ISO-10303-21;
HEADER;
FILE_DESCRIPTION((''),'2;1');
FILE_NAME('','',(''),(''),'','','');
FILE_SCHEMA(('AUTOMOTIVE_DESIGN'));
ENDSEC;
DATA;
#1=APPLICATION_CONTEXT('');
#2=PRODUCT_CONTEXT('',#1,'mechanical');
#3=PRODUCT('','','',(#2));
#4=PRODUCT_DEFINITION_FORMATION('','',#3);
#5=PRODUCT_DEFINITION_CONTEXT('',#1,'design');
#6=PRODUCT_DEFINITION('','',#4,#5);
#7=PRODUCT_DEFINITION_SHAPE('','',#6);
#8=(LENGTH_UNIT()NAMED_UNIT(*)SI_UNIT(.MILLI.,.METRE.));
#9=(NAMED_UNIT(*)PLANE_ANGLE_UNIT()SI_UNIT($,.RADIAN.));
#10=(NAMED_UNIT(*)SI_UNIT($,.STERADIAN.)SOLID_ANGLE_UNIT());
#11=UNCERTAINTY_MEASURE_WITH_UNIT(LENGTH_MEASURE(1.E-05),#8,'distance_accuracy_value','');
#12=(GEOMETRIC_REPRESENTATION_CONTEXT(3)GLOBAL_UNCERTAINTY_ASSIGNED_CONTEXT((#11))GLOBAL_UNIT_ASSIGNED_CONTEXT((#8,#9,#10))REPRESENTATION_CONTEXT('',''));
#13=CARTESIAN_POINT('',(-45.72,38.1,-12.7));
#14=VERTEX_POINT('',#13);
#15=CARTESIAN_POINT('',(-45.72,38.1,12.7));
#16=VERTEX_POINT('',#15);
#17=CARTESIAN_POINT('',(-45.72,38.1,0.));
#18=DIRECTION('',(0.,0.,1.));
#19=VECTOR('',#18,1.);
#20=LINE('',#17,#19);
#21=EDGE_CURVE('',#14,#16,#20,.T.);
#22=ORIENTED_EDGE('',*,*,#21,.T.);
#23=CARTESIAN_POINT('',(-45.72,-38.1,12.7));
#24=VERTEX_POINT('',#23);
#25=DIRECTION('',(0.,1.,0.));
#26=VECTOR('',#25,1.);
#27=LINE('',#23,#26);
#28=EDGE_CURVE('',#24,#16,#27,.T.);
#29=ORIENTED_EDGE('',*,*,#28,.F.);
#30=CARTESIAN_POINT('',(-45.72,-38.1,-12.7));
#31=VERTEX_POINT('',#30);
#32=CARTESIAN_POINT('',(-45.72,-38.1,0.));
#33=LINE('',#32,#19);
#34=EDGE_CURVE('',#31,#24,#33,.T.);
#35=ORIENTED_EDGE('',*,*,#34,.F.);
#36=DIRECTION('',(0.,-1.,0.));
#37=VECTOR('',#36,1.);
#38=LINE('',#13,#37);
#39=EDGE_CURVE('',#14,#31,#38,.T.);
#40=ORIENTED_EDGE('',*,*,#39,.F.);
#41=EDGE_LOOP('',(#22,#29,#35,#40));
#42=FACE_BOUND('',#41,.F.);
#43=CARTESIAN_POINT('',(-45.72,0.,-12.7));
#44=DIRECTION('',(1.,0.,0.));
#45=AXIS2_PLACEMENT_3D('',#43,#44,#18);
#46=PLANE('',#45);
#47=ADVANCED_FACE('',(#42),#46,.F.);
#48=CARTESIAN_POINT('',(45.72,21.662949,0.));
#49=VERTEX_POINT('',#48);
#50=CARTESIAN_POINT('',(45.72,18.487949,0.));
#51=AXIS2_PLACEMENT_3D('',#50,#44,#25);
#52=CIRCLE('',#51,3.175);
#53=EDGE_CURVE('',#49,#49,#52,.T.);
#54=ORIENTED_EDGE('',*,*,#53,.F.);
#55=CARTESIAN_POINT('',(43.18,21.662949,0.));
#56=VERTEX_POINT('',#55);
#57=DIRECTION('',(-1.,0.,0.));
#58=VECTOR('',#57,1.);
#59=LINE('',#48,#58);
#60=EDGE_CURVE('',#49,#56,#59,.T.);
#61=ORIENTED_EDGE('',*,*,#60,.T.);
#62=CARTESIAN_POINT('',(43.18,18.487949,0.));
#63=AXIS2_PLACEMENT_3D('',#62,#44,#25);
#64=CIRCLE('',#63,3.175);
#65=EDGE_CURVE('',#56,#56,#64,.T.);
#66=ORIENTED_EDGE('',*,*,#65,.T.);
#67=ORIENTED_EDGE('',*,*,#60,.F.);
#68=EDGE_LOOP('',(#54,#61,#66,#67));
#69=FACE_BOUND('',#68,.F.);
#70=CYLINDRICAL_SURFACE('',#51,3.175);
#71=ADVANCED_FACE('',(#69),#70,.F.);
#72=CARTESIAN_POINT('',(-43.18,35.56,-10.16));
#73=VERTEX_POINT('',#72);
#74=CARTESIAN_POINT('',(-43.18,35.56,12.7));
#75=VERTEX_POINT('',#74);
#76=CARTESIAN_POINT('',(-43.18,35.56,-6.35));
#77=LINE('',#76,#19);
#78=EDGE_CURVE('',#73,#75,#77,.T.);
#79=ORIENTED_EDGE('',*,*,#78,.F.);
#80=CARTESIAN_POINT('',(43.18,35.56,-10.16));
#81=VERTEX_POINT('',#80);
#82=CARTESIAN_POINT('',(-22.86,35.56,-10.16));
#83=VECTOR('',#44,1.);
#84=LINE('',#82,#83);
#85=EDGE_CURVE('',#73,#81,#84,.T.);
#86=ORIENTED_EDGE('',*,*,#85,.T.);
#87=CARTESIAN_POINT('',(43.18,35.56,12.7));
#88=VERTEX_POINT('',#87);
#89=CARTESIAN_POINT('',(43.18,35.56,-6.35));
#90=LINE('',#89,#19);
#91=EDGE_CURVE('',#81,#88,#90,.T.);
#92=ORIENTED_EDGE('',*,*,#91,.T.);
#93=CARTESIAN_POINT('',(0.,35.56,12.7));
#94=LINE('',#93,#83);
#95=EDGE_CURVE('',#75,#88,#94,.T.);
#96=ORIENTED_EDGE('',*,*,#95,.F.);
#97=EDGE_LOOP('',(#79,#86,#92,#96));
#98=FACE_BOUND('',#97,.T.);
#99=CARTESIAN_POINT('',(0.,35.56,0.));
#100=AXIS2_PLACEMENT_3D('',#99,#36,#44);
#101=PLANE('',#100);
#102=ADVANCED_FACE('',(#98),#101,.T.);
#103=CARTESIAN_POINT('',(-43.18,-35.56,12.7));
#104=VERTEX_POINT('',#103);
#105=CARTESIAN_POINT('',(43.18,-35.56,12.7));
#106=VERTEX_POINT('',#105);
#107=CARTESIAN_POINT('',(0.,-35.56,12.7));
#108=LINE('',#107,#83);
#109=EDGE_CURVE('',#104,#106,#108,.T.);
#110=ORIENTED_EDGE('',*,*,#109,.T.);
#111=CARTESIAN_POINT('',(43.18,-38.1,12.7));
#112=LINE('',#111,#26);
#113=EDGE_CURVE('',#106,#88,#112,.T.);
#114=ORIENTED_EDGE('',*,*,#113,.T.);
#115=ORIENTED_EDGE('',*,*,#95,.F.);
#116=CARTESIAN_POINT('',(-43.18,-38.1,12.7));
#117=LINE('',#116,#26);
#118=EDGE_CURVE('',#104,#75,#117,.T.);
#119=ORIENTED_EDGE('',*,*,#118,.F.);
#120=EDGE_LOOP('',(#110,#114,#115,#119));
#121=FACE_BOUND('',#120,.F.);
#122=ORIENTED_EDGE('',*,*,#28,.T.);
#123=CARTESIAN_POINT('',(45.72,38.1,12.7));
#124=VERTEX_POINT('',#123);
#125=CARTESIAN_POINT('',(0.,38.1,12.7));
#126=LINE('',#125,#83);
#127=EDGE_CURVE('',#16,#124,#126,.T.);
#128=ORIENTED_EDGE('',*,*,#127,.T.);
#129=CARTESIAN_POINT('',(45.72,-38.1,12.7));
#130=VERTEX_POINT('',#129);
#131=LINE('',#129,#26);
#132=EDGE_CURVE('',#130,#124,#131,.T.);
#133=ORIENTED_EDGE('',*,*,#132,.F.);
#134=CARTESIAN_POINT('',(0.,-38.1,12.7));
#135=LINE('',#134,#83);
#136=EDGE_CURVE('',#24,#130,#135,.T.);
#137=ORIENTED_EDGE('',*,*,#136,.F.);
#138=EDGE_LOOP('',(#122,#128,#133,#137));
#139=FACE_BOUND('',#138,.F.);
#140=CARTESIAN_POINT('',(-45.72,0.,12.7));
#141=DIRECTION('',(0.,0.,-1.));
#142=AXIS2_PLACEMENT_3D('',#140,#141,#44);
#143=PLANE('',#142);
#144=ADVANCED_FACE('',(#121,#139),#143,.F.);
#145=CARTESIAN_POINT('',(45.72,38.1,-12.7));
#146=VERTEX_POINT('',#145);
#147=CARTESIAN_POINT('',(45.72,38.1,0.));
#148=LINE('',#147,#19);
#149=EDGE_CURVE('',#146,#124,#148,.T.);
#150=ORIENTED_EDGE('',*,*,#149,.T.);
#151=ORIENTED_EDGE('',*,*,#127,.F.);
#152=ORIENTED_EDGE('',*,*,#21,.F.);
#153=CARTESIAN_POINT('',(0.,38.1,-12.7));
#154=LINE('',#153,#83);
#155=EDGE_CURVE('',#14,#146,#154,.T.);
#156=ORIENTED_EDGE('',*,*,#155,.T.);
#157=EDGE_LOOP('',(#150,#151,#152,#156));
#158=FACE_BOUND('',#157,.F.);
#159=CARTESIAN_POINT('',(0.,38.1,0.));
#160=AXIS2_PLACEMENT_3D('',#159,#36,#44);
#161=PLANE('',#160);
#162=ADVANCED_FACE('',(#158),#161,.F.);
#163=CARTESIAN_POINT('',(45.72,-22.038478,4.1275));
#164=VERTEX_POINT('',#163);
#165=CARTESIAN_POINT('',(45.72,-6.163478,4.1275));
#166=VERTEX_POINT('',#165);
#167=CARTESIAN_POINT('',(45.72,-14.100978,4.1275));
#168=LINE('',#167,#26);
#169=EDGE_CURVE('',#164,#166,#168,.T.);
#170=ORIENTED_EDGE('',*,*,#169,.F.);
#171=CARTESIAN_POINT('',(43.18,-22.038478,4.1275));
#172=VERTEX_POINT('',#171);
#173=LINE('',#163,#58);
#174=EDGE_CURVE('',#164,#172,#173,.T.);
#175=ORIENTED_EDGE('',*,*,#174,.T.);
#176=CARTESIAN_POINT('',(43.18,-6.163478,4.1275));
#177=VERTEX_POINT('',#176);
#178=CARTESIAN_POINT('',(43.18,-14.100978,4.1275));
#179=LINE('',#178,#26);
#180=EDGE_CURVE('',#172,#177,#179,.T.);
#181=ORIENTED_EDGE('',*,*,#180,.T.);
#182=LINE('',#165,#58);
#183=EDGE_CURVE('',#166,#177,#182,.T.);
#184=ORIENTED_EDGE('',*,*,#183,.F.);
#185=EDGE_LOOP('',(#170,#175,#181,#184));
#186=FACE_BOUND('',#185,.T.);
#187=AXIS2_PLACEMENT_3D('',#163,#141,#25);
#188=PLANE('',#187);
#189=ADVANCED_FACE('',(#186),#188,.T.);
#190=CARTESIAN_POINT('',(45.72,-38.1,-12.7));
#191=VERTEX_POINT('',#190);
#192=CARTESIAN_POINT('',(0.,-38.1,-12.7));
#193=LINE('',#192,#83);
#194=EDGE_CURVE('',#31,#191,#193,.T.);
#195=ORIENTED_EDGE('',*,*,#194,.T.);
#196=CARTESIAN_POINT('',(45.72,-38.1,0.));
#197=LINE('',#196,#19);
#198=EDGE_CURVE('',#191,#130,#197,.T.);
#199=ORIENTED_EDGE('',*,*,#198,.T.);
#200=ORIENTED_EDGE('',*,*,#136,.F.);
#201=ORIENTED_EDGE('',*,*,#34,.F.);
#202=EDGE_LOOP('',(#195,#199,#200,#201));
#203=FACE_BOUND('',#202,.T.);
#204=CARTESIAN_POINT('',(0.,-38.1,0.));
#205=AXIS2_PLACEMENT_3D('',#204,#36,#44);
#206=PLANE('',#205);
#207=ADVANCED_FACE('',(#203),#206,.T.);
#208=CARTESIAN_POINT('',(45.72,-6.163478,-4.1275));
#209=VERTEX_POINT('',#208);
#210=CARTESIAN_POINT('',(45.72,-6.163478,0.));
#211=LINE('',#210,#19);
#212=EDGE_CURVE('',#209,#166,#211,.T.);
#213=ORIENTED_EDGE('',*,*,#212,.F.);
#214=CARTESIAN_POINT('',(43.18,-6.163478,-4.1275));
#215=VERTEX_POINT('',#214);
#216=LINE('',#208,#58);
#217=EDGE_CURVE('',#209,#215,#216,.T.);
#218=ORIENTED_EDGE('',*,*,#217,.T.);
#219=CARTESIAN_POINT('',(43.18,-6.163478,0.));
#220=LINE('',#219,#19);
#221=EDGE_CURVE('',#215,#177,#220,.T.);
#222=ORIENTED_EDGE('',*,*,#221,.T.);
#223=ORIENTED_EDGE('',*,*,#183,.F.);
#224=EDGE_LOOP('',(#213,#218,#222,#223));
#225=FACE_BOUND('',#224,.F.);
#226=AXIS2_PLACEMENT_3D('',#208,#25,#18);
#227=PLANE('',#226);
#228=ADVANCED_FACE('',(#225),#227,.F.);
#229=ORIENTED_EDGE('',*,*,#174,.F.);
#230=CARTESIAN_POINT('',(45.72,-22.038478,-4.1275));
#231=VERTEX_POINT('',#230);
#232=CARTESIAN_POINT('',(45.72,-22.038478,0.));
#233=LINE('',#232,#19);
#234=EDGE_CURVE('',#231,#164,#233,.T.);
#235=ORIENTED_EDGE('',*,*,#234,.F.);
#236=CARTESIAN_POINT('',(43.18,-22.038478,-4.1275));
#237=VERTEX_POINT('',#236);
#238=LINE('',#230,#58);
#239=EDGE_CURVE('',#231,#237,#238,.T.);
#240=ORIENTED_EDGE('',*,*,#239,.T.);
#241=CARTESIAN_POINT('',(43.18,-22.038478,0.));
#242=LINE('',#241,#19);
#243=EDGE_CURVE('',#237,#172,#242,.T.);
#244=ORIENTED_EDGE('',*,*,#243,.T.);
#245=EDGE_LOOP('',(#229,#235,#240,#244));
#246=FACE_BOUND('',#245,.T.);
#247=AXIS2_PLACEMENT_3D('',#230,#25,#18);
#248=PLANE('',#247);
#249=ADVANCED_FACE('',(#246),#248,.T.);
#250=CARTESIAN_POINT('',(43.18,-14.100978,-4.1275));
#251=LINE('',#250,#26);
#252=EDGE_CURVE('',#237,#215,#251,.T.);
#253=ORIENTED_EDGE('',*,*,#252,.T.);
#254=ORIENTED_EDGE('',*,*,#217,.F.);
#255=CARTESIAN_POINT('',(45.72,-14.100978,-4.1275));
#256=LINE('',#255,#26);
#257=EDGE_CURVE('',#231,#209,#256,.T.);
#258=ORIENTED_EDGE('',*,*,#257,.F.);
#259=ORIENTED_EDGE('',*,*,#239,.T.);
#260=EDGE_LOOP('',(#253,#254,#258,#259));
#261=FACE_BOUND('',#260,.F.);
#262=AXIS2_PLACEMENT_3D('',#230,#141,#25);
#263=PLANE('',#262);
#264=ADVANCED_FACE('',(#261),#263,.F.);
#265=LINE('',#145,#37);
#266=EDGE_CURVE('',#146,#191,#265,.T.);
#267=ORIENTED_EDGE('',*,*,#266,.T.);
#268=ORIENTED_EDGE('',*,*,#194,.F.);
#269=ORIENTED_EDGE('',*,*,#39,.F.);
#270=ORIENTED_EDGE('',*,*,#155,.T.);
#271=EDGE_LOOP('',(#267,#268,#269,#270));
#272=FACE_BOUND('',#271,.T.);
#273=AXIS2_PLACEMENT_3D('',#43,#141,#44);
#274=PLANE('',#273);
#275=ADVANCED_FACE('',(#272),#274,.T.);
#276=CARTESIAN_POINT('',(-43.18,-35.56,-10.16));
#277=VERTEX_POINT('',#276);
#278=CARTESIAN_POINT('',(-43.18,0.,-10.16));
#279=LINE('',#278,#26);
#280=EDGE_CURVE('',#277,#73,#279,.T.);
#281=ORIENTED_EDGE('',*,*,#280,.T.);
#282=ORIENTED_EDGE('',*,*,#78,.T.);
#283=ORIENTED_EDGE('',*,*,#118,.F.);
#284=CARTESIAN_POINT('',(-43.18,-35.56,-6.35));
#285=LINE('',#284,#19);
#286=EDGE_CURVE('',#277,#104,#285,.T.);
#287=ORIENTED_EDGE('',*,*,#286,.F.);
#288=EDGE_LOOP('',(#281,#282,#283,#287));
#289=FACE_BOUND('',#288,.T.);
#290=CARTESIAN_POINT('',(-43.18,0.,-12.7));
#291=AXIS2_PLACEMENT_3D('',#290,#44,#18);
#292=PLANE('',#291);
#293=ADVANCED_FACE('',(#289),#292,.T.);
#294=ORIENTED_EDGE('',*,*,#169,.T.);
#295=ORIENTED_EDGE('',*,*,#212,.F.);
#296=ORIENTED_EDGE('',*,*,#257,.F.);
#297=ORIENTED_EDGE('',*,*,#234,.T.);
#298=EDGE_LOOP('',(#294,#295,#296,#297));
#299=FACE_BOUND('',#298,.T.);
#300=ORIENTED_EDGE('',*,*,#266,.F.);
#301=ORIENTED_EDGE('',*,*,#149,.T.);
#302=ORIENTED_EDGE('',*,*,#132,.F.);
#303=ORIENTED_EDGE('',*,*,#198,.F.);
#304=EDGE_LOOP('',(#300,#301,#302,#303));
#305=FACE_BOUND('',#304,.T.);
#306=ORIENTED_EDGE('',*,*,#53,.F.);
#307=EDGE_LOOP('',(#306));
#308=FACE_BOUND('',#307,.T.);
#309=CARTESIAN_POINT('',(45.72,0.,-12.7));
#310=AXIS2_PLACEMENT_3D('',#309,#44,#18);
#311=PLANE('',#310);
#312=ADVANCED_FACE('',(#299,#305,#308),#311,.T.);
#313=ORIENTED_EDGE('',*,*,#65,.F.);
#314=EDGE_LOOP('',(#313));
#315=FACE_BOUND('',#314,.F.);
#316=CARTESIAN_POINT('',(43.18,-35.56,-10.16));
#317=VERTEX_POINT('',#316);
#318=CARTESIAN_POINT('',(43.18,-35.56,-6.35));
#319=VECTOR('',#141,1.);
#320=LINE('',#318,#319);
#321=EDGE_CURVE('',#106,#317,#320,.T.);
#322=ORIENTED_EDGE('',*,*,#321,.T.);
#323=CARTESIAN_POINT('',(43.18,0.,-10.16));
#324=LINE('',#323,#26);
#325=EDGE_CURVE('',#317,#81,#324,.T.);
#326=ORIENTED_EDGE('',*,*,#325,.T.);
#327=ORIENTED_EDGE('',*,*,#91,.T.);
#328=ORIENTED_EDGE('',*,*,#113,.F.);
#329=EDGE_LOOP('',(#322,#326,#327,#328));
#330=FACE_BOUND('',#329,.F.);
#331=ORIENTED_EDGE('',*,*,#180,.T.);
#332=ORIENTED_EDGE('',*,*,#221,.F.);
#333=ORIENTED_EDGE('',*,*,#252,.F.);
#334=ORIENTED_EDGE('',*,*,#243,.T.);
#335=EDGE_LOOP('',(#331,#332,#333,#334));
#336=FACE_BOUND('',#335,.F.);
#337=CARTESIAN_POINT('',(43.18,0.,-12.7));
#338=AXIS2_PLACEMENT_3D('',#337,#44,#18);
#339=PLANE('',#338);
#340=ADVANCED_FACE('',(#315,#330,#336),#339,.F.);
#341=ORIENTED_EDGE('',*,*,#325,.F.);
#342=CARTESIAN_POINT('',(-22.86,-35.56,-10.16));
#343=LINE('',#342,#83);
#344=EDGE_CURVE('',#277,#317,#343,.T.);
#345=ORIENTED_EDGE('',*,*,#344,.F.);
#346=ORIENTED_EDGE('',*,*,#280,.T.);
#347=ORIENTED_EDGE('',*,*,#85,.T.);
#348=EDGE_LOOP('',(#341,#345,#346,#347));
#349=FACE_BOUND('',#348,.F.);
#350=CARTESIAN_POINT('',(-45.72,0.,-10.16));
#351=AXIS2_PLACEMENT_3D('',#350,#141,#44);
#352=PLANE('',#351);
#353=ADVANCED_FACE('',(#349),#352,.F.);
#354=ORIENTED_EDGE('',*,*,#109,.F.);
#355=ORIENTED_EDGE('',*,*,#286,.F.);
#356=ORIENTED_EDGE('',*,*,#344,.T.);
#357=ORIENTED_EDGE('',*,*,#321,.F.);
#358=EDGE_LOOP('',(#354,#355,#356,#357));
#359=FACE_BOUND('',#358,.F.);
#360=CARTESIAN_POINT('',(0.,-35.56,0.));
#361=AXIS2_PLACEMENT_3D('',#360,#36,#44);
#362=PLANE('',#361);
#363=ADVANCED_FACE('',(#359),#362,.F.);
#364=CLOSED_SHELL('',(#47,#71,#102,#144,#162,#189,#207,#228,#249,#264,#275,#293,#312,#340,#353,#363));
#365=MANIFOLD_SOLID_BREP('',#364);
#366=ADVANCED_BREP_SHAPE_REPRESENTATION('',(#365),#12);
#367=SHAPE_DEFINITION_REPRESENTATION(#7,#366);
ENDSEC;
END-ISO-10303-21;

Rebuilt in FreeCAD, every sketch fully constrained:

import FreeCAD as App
import Part
import Sketcher
from FreeCAD import Vector
Q = App.Units.Quantity


def faces_at(feature, points):
    """Names of the faces that lie closest to the given points."""
    faces = feature.Shape.Faces
    near = lambda p: min(range(len(faces)), key=lambda i: faces[i].distToShape(Part.Vertex(*p))[0])
    return sorted({f"Face{near(p) + 1}" for p in points})


def add_polygon(sketch, points):
    """Adds a closed chain of lines whose ends are joined by coincident constraints."""
    first, n = sketch.GeometryCount, len(points)
    for a, b in zip(points, points[1:] + points[:1]):
        sketch.addGeometry(Part.LineSegment(App.Vector(*a, 0), App.Vector(*b, 0)), False)
    for i in range(n):
        sketch.addConstraint(Sketcher.Constraint("Coincident", first + i, 2, first + (i + 1) % n, 1))

doc = App.newDocument("Part")
body = doc.addObject("PartDesign::Body", "Body")

# Sketch on XZ plane
sketch1 = body.newObject("Sketcher::SketchObject", "Sketch")
sketch1.AttachmentSupport = (doc.getObject("XZ_Plane"), [""])
sketch1.MapMode = "FlatFace"
add_polygon(sketch1, [(-46, 13), (-46, -13), (46, -13), (46, 13)])  # lines 0-3
sketch1.addConstraint([
    Sketcher.Constraint("Vertical", 0),
    Sketcher.Constraint("Horizontal", 1),
    Sketcher.Constraint("Vertical", 2),
    Sketcher.Constraint("Horizontal", 3),
    Sketcher.Constraint("Symmetric", 0, 2, 2, 2, -1, 1),
    Sketcher.Constraint("DistanceY", 0, 2, 0, 1, Q("1 in")),
    Sketcher.Constraint("DistanceX", 1, 1, 1, 2, Q("3.6 in")),
])
pad1 = body.newObject("PartDesign::Pad", "Pad")
pad1.Profile = sketch1
pad1.Length = Q("3 in")
pad1.Midplane = True
doc.recompute()

thickness = body.newObject("PartDesign::Thickness", "Thickness")
thickness.Base = (pad1, faces_at(pad1, [(0, 0, 12.7)]))
thickness.Value = Q("0.1 in")
thickness.Reversed = True
thickness.Join = "Arc"

# Sketch on YZ plane
sketch2 = body.newObject("Sketcher::SketchObject", "Sketch001")
sketch2.AttachmentSupport = (doc.getObject("YZ_Plane"), [""])
sketch2.MapMode = "FlatFace"
sketch2.AttachmentOffset = App.Placement(Vector(0, 0, 1.8 * 25.4), App.Rotation())
add_polygon(sketch2, [(-22, 4.1), (-22, -4.1), (-6.2, -4.1), (-6.2, 4.1)])  # lines 0-3
sketch2.addGeometry(Part.Circle(Vector(18.5, 0, 0), Vector(0, 0, 1), 3.2), False)  # 4
sketch2.addConstraint([
    Sketcher.Constraint("Vertical", 0),
    Sketcher.Constraint("Horizontal", 1),
    Sketcher.Constraint("Vertical", 2),
    Sketcher.Constraint("Horizontal", 3),
    Sketcher.Constraint("PointOnObject", 4, 3, -1),
    Sketcher.Constraint("Diameter", 4, Q("0.25 in")),
    Sketcher.Constraint("DistanceX", 1, 1, 1, 2, Q("0.625 in")),
    Sketcher.Constraint("DistanceY", 0, 2, 0, 1, Q("0.325 in")),
    Sketcher.Constraint("DistanceY", 0, 2, -1, 1, Q("0.1625 in")),
    Sketcher.Constraint("DistanceX", -1, 1, 4, 3, 18.487949),
    Sketcher.Constraint("DistanceX", 0, 2, -1, 1, 22.038478),
])
pocket1 = body.newObject("PartDesign::Pocket", "Pocket")
pocket1.Profile = sketch2
pocket1.Length = Q("0.1 in")

doc.recompute()
